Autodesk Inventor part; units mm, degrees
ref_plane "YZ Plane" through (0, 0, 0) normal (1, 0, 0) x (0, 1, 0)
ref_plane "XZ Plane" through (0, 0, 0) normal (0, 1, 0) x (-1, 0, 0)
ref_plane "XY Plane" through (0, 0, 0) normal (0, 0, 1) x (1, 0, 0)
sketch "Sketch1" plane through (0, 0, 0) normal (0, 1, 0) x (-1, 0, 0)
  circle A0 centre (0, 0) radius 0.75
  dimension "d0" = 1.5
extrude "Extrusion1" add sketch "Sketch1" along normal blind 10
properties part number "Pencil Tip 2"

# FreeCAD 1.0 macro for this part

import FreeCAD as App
import Part
import Sketcher

V = App.Vector

doc = App.newDocument("Part")
body = doc.addObject("PartDesign::Body", "Body")

# Sketch on XZ plane
sketch1 = body.newObject("Sketcher::SketchObject", "Sketch")
sketch1.AttachmentSupport = (doc.getObject("XZ_Plane"), [""])
sketch1.MapMode = "FlatFace"
sketch1.addGeometry(Part.Circle(V(0, 0, 0), V(0, 0, 1), 0.8), False)
sketch1.addConstraint([
    Sketcher.Constraint("Coincident", 0, 3, -1, 1),
    Sketcher.Constraint("Diameter", 0, 1.5),
])
pad1 = body.newObject("PartDesign::Pad", "Pad")
pad1.Profile = sketch1
pad1.Length = 10
pad1.Reversed = True

doc.recompute()
